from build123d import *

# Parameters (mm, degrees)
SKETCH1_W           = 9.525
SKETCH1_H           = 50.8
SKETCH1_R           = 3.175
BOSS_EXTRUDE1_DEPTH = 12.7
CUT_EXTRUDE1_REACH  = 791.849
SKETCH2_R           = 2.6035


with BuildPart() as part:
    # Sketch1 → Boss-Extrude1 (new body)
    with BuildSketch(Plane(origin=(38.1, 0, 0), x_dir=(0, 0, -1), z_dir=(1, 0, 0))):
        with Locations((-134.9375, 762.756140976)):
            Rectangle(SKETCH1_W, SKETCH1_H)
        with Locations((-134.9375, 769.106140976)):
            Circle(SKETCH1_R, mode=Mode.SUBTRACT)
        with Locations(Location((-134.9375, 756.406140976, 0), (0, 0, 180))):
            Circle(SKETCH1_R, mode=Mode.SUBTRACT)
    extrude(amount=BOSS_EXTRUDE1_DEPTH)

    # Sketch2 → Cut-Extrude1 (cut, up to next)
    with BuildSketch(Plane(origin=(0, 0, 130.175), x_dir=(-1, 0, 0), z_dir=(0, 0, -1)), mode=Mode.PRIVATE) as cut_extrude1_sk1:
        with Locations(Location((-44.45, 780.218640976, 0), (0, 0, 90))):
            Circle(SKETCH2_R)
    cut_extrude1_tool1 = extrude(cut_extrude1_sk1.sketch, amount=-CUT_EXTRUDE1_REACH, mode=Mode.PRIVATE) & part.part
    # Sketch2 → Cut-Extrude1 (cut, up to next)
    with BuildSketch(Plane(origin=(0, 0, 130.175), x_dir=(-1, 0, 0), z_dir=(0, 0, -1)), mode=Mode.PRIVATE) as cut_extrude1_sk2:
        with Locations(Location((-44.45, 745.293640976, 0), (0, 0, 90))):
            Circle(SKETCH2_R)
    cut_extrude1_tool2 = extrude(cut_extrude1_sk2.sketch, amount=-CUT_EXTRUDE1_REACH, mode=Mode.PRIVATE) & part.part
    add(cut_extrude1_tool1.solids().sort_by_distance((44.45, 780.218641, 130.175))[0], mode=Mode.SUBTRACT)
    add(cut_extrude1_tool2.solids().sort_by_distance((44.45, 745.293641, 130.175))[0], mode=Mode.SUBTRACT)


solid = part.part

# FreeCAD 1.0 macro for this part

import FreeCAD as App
import Part
import Sketcher
from FreeCAD import Vector
Q = App.Units.Quantity

doc = App.newDocument("Part")
params = doc.addObject("Spreadsheet::Sheet", "Params")
for row, (alias, value) in enumerate([
    ("sketch1_diameter", "0.25 in"),
    ("sketch1_width", "2 in"),
    ("sketch1_height", "0.375 in"),
    ("pad1_length", "0.5 in"),
    ("sketch2_diameter", "0.205 in"),
    ("sketch3_diameter", "0.205 in"),
], start=1):
    params.set(f"A{row}", alias)
    params.set(f"B{row}", "=" + value)
    params.setAlias(f"B{row}", alias)

body = doc.addObject("PartDesign::Body", "Body")

# Sketch on YZ plane
sketch1 = body.newObject("Sketcher::SketchObject", "Sketch")
sketch1.AttachmentSupport = (doc.getObject("YZ_Plane"), [""])
sketch1.MapMode = "FlatFace"
sketch1.AttachmentOffset = App.Placement(Vector(0, 0, 1.5 * 25.4), App.Rotation())
sketch1.addGeometry(Part.LineSegment(Vector(788.2, 139.7, 0), Vector(737.4, 139.7, 0)), False)
sketch1.addGeometry(Part.LineSegment(Vector(737.4, 139.7, 0), Vector(737.4, 130.2, 0)), False)
sketch1.addGeometry(Part.LineSegment(Vector(737.4, 130.2, 0), Vector(788.2, 130.2, 0)), False)
sketch1.addGeometry(Part.LineSegment(Vector(788.2, 130.2, 0), Vector(788.2, 139.7, 0)), False)
sketch1.addGeometry(Part.Circle(Vector(756.4, 134.9, 0), Vector(0, 0, 1), 3.2), False)
sketch1.addGeometry(Part.Circle(Vector(769.1, 134.9, 0), Vector(0, 0, 1), 3.2), False)
sketch1.addConstraint(Sketcher.Constraint("Coincident", 0, 2, 1, 1))
sketch1.addConstraint(Sketcher.Constraint("Coincident", 1, 2, 2, 1))
sketch1.addConstraint(Sketcher.Constraint("Coincident", 2, 2, 3, 1))
sketch1.addConstraint(Sketcher.Constraint("Coincident", 3, 2, 0, 1))
sketch1.addConstraint(Sketcher.Constraint("Horizontal", 0))
sketch1.addConstraint(Sketcher.Constraint("Vertical", 1))
sketch1.addConstraint(Sketcher.Constraint("Horizontal", 2))
sketch1.addConstraint(Sketcher.Constraint("Vertical", 3))
sketch1.addConstraint(Sketcher.Constraint("Equal", 4, 5))
sketch1.addConstraint(Sketcher.Constraint("Horizontal", 4, 3, 5, 3))
sketch1.addConstraint(Sketcher.Constraint("Diameter", 4, Q("0.25 in")))
sketch1.addConstraint(Sketcher.Constraint("DistanceX", 0, 2, 0, 1, Q("2 in")))
sketch1.addConstraint(Sketcher.Constraint("DistanceY", -1, 1, 0, 2, Q("5.5 in")))
sketch1.addConstraint(Sketcher.Constraint("DistanceX", 4, 3, 5, 3, Q("0.5 in")))
sketch1.addConstraint(Sketcher.Constraint("DistanceY", 1, 2, 1, 1, Q("0.375 in")))
sketch1.addConstraint(Sketcher.Constraint("DistanceX", 0, 2, 4, 3, Q("0.75 in")))
sketch1.addConstraint(Sketcher.Constraint("DistanceY", -1, 1, 4, 3, Q("5.3125 in")))
sketch1.addConstraint(Sketcher.Constraint("DistanceX", -1, 1, 4, 3, 756.406141))
sketch1.setExpression("Constraints[10]", "Params.sketch1_diameter")
sketch1.setExpression("Constraints[11]", "Params.sketch1_width")
sketch1.setExpression("Constraints[14]", "Params.sketch1_height")
pad1 = body.newObject("PartDesign::Pad", "Pad")
pad1.Profile = sketch1
pad1.setExpression("Length", "Params.pad1_length")

# Sketch on XY plane
sketch2 = body.newObject("Sketcher::SketchObject", "Sketch001")
sketch2.AttachmentSupport = (doc.getObject("XY_Plane"), [""])
sketch2.MapMode = "FlatFace"
sketch2.AttachmentOffset = App.Placement(Vector(0, 0, 5.125 * 25.4), App.Rotation())
sketch2.addGeometry(Part.Circle(Vector(44.5, 780.2, 0), Vector(0, 0, 1), 2.6), False)
sketch2.addConstraint(Sketcher.Constraint("Diameter", 0, Q("0.205 in")))
sketch2.addConstraint(Sketcher.Constraint("DistanceX", -1, 1, 0, 3, Q("1.75 in")))
sketch2.addConstraint(Sketcher.Constraint("DistanceY", -1, 1, 0, 3, 780.218641))
sketch2.setExpression("Constraints[0]", "Params.sketch2_diameter")
pocket1 = body.newObject("PartDesign::Pocket", "Pocket")
pocket1.Profile = sketch2
pocket1.Type = "UpToFirst"
pocket1.Reversed = True

# Sketch on XY plane
sketch3 = body.newObject("Sketcher::SketchObject", "Sketch002")
sketch3.AttachmentSupport = (doc.getObject("XY_Plane"), [""])
sketch3.MapMode = "FlatFace"
sketch3.AttachmentOffset = App.Placement(Vector(0, 0, 5.125 * 25.4), App.Rotation())
sketch3.addGeometry(Part.Circle(Vector(44.5, 745.3, 0), Vector(0, 0, 1), 2.6), False)
sketch3.addConstraint(Sketcher.Constraint("Diameter", 0, Q("0.205 in")))
sketch3.addConstraint(Sketcher.Constraint("DistanceX", -1, 1, 0, 3, Q("1.75 in")))
sketch3.addConstraint(Sketcher.Constraint("DistanceY", -1, 1, 0, 3, 745.293641))
sketch3.setExpression("Constraints[0]", "Params.sketch3_diameter")
pocket2 = body.newObject("PartDesign::Pocket", "Pocket001")
pocket2.Profile = sketch3
pocket2.Type = "UpToFirst"
pocket2.Reversed = True

doc.recompute()
